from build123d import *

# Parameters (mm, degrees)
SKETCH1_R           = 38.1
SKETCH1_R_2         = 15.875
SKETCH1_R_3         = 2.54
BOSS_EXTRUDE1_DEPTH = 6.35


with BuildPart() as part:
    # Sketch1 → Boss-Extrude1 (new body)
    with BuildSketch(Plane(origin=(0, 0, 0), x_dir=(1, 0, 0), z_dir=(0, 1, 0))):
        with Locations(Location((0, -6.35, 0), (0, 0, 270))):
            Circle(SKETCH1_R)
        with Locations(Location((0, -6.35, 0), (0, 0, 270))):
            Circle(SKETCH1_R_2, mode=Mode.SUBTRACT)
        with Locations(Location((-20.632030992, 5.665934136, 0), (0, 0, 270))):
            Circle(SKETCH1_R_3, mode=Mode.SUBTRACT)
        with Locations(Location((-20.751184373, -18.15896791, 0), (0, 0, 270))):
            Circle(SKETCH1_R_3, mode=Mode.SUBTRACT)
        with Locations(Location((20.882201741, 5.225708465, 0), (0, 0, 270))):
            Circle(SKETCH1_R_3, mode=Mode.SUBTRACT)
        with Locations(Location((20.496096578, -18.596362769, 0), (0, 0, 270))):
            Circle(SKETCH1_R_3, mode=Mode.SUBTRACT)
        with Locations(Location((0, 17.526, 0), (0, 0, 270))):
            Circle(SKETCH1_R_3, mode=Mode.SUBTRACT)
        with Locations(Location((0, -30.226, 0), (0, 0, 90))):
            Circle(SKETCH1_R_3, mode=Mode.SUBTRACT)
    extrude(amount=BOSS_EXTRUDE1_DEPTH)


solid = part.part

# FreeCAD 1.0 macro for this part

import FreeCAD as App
import Part
import Sketcher
Q = App.Units.Quantity

doc = App.newDocument("Part")
body = doc.addObject("PartDesign::Body", "Body")

sketch1 = body.newObject("Sketcher::SketchObject", "Sketch")
sketch1.AttachmentSupport = (doc.getObject("XZ_Plane"), [""])
sketch1.MapMode = "FlatFace"
sketch1.addGeometry(Part.Circle(App.Vector(0, 6.3, 0), App.Vector(0, 0, 1), 38.1), False)
sketch1.addGeometry(Part.Circle(App.Vector(-20.6, -5.7, 0), App.Vector(0, 0, 1), 2.5), False)
sketch1.addGeometry(Part.Circle(App.Vector(0, -17.5, 0), App.Vector(0, 0, 1), 2.5), False)
sketch1.addGeometry(Part.Circle(App.Vector(0, 6.3, 0), App.Vector(0, 0, 1), 15.9), False)
sketch1.addGeometry(Part.Circle(App.Vector(-20.8, 18.2, 0), App.Vector(0, 0, 1), 2.5), False)
sketch1.addGeometry(Part.Circle(App.Vector(0, 30.2, 0), App.Vector(0, 0, 1), 2.5), False)
sketch1.addGeometry(Part.Circle(App.Vector(20.9, -5.2, 0), App.Vector(0, 0, 1), 2.5), False)
sketch1.addGeometry(Part.Circle(App.Vector(20.5, 18.6, 0), App.Vector(0, 0, 1), 2.5), False)
sketch1.addConstraint(Sketcher.Constraint("Coincident", 3, 3, 0, 3))
sketch1.addConstraint(Sketcher.Constraint("Equal", 1, 2))
sketch1.addConstraint(Sketcher.Constraint("Equal", 2, 4))
sketch1.addConstraint(Sketcher.Constraint("Equal", 4, 5))
sketch1.addConstraint(Sketcher.Constraint("Equal", 5, 6))
sketch1.addConstraint(Sketcher.Constraint("Equal", 6, 7))
sketch1.addConstraint(Sketcher.Constraint("PointOnObject", 0, 3, -2))
sketch1.addConstraint(Sketcher.Constraint("PointOnObject", 2, 3, -2))
sketch1.addConstraint(Sketcher.Constraint("PointOnObject", 5, 3, -2))
sketch1.addConstraint(Sketcher.Constraint("Diameter", 0, Q("3 in")))
sketch1.addConstraint(Sketcher.Constraint("Diameter", 1, Q("0.2 in")))
sketch1.addConstraint(Sketcher.Constraint("Diameter", 3, Q("1.25 in")))
sketch1.addConstraint(Sketcher.Constraint("DistanceY", -1, 1, 0, 3, Q("0.25 in")))
sketch1.addConstraint(Sketcher.Constraint("DistanceY", 2, 3, -1, 1, Q("0.69 in")))
sketch1.addConstraint(Sketcher.Constraint("DistanceY", -1, 1, 5, 3, Q("1.19 in")))
sketch1.addConstraint(Sketcher.Constraint("DistanceX", -1, 1, 6, 3, 20.882202))
sketch1.addConstraint(Sketcher.Constraint("DistanceX", 1, 3, -1, 1, 20.632031))
sketch1.addConstraint(Sketcher.Constraint("DistanceY", 6, 3, -1, 1, 5.225708))
sketch1.addConstraint(Sketcher.Constraint("DistanceY", 6, 3, 7, 3, 23.822071))
sketch1.addConstraint(Sketcher.Constraint("DistanceX", 4, 3, 7, 3, 41.247281))
sketch1.addConstraint(Sketcher.Constraint("DistanceY", 1, 3, -1, 1, 5.665934))
sketch1.addConstraint(Sketcher.Constraint("DistanceX", 4, 3, -1, 1, 20.751184))
sketch1.addConstraint(Sketcher.Constraint("DistanceY", -1, 1, 4, 3, 18.158968))
pad1 = body.newObject("PartDesign::Pad", "Pad")
pad1.Profile = sketch1
pad1.Length = Q("0.25 in")
pad1.Reversed = True

doc.recompute()
